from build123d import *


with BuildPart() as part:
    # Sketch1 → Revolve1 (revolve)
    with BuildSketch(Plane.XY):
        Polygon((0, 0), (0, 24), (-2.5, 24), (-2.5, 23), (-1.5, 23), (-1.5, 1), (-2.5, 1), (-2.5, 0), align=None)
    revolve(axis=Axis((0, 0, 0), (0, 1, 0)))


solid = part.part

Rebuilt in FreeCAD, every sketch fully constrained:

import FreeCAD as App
import Part
import Sketcher

V = App.Vector
Q = App.Units.Quantity


def add_polygon(sketch, points):
    """Adds a closed chain of lines whose ends are joined by coincident constraints."""
    first, n = sketch.GeometryCount, len(points)
    for a, b in zip(points, points[1:] + points[:1]):
        sketch.addGeometry(Part.LineSegment(App.Vector(*a, 0), App.Vector(*b, 0)), False)
    for i in range(n):
        sketch.addConstraint(Sketcher.Constraint("Coincident", first + i, 2, first + (i + 1) % n, 1))

doc = App.newDocument("Part")
body = doc.addObject("PartDesign::Body", "Body")

# Sketch on XY plane
sketch1 = body.newObject("Sketcher::SketchObject", "Sketch")
sketch1.AttachmentSupport = (doc.getObject("XY_Plane"), [""])
sketch1.MapMode = "FlatFace"
add_polygon(sketch1, [(0, 0), (0, 24), (-2.5, 24), (-2.5, 23), (-1.5, 23), (-1.5, 1), (-2.5, 1), (-2.5, 0)])  # lines 0-7
sketch1.addConstraint([
    Sketcher.Constraint("Vertical", 0),
    Sketcher.Constraint("Horizontal", 1),
    Sketcher.Constraint("Vertical", 2),
    Sketcher.Constraint("Horizontal", 3),
    Sketcher.Constraint("Vertical", 4),
    Sketcher.Constraint("Horizontal", 5),
    Sketcher.Constraint("Vertical", 6),
    Sketcher.Constraint("Horizontal", 7),
    Sketcher.Constraint("Coincident", 7, 2, -1, 1),
    Sketcher.Constraint("Vertical", 2, 2, 5, 2),
    Sketcher.Constraint("Equal", 5, 2),
    Sketcher.Constraint("Equal", 2, 6),
    Sketcher.Constraint("DistanceX", 3, 1, 3, 2, Q("1 mm")),
    Sketcher.Constraint("DistanceY", 0, 1, 0, 2, Q("24 mm")),
    Sketcher.Constraint("DistanceX", 1, 2, 1, 1, Q("2.5 mm")),
])
revolution = body.newObject("PartDesign::Revolution", "Revolution")
revolution.Profile = sketch1
revolution.ReferenceAxis = (sketch1, ["V_Axis"])
revolution.Angle = 360

doc.recompute()
